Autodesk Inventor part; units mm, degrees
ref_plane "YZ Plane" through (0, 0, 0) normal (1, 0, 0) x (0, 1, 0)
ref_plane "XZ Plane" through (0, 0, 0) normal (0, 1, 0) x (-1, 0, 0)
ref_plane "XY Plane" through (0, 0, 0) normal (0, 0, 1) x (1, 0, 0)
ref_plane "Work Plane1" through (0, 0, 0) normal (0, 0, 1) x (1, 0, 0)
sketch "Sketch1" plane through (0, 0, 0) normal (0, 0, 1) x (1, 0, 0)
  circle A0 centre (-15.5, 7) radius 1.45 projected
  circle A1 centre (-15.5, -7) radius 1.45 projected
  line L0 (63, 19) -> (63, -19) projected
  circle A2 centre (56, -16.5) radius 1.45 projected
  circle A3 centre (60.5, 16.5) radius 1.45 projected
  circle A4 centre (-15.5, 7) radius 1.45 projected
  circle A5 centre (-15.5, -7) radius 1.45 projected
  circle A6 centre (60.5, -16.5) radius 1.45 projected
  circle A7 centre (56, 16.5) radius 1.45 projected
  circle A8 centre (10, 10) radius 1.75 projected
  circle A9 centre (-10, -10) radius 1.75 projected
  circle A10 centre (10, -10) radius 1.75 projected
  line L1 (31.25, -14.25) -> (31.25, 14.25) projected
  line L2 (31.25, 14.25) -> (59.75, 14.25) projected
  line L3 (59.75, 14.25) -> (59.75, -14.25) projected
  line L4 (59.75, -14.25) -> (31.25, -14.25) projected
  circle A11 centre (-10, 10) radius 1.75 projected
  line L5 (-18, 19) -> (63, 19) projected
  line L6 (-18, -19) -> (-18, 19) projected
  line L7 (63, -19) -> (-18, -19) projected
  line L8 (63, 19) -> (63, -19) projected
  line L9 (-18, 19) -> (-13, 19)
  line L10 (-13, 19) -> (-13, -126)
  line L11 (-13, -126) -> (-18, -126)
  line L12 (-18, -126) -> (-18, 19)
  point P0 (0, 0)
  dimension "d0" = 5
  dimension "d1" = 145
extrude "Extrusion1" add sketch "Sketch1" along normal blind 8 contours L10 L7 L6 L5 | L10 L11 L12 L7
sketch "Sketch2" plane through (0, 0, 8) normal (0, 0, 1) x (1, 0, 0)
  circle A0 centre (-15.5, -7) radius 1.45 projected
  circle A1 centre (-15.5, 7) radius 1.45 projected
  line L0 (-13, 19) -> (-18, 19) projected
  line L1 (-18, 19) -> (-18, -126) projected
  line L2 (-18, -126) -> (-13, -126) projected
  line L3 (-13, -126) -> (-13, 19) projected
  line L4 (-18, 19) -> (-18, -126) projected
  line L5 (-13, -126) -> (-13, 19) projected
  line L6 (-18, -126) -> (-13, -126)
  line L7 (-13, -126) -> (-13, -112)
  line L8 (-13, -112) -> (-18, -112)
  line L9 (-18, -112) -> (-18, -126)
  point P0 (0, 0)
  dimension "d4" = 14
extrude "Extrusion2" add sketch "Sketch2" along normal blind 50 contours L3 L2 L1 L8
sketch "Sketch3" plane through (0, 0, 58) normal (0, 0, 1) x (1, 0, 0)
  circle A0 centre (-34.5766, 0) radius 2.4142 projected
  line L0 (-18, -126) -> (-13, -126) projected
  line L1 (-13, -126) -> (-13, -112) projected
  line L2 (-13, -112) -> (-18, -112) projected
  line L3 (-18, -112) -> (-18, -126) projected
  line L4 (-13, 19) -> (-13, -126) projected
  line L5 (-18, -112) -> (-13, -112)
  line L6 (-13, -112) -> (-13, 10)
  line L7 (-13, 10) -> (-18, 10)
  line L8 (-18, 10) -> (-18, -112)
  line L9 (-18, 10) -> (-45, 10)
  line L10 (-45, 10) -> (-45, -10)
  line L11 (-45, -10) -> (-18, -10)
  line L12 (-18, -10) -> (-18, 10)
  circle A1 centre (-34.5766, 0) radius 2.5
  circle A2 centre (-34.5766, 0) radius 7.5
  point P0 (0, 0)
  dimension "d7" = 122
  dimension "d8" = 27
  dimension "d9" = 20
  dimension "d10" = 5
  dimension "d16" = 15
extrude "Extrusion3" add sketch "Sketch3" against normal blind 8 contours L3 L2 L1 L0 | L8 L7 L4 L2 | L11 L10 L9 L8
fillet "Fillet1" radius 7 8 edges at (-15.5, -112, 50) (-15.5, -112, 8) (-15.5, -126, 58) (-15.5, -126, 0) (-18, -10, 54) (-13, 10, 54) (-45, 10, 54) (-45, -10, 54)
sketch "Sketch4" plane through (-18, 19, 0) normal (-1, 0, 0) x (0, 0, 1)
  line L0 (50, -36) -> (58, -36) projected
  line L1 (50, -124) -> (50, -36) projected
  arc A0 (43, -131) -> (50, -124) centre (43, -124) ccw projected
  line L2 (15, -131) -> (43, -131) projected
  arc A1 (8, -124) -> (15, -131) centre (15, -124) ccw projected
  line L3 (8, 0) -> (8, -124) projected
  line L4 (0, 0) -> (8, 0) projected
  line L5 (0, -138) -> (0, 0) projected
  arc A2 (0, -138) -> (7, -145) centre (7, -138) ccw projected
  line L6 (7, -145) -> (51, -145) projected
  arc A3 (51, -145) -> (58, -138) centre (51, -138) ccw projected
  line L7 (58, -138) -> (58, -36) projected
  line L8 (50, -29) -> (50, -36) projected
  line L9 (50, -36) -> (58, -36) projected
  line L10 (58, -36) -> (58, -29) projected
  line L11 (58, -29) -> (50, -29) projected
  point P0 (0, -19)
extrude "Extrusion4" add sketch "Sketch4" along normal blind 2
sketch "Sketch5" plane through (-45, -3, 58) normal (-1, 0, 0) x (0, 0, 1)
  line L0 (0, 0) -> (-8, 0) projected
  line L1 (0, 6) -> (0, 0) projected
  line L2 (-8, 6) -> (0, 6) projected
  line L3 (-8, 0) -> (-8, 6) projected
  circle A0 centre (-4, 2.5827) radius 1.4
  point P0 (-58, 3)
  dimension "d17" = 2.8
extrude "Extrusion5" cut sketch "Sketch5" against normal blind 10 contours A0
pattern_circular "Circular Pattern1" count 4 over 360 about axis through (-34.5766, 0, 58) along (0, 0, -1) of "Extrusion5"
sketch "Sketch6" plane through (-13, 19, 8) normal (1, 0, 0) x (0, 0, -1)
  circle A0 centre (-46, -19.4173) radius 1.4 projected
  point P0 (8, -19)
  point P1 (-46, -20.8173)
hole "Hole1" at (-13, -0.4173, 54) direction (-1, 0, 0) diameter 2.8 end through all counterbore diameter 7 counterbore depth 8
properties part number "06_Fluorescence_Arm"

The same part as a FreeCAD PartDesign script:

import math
import FreeCAD as App
import Part
import Sketcher

V = App.Vector
Q = App.Units.Quantity


def edges_at(feature, points):
    """Names of the edges that pass closest to the given points."""
    edges = feature.Shape.Edges
    near = lambda p: min(range(len(edges)), key=lambda i: edges[i].distToShape(Part.Vertex(*p))[0])
    return sorted({f"Edge{near(p) + 1}" for p in points})

doc = App.newDocument("Part")
body = doc.addObject("PartDesign::Body", "Body")

sketch1 = body.newObject("Sketcher::SketchObject", "Sketch")
sketch1.AttachmentSupport = (doc.getObject("XY_Plane"), [""])
sketch1.MapMode = "FlatFace"
sketch1.addGeometry(Part.LineSegment(V(-13, 19, 0), V(-18, 19, 0)), False)
sketch1.addGeometry(Part.LineSegment(V(-18, 19, 0), V(-18, -126, 0)), False)
sketch1.addGeometry(Part.LineSegment(V(-18, -126, 0), V(-13, -126, 0)), False)
sketch1.addGeometry(Part.LineSegment(V(-13, -126, 0), V(-13, 19, 0)), False)
sketch1.addGeometry(Part.Circle(V(-15.5, -7, 0), V(0, 0, 1), 1.4), False)
sketch1.addGeometry(Part.Circle(V(-15.5, 7, 0), V(0, 0, 1), 1.4), False)
sketch1.addConstraint(Sketcher.Constraint("Coincident", 0, 2, 1, 1))
sketch1.addConstraint(Sketcher.Constraint("Coincident", 1, 2, 2, 1))
sketch1.addConstraint(Sketcher.Constraint("Coincident", 2, 2, 3, 1))
sketch1.addConstraint(Sketcher.Constraint("Coincident", 3, 2, 0, 1))
sketch1.addConstraint(Sketcher.Constraint("Horizontal", 0))
sketch1.addConstraint(Sketcher.Constraint("Vertical", 1))
sketch1.addConstraint(Sketcher.Constraint("Horizontal", 2))
sketch1.addConstraint(Sketcher.Constraint("Vertical", 3))
sketch1.addConstraint(Sketcher.Constraint("Equal", 4, 5))
sketch1.addConstraint(Sketcher.Constraint("Symmetric", 4, 3, 5, 3, -1))
sketch1.addConstraint(Sketcher.Constraint("DistanceX", 0, 2, 0, 1, Q("5 mm")))
sketch1.addConstraint(Sketcher.Constraint("DistanceY", 1, 2, 1, 1, Q("145 mm")))
sketch1.addConstraint(Sketcher.Constraint("Diameter", 4, Q("2.9 mm")))
sketch1.addConstraint(Sketcher.Constraint("DistanceY", 4, 3, -1, 1, Q("7 mm")))
sketch1.addConstraint(Sketcher.Constraint("DistanceX", 0, 2, -1, 1, Q("18 mm")))
sketch1.addConstraint(Sketcher.Constraint("DistanceY", -1, 1, 0, 2, Q("19 mm")))
sketch1.addConstraint(Sketcher.Constraint("DistanceX", 4, 3, -1, 1, Q("15.5 mm")))
pad1 = body.newObject("PartDesign::Pad", "Pad")
pad1.Profile = sketch1
pad1.Length = 8

sketch2 = body.newObject("Sketcher::SketchObject", "Sketch001")
sketch2.AttachmentSupport = (doc.getObject("XY_Plane"), [""])
sketch2.MapMode = "FlatFace"
sketch2.AttachmentOffset = App.Placement(V(0, 0, 8), App.Rotation())
sketch2.addGeometry(Part.LineSegment(V(-13, -126, 0), V(-13, -112, 0)), False)
sketch2.addGeometry(Part.LineSegment(V(-13, -112, 0), V(-18, -112, 0)), False)
sketch2.addGeometry(Part.LineSegment(V(-18, -112, 0), V(-18, -126, 0)), False)
sketch2.addGeometry(Part.LineSegment(V(-18, -126, 0), V(-13, -126, 0)), False)
sketch2.addConstraint(Sketcher.Constraint("Coincident", 0, 2, 1, 1))
sketch2.addConstraint(Sketcher.Constraint("Coincident", 1, 2, 2, 1))
sketch2.addConstraint(Sketcher.Constraint("Coincident", 2, 2, 3, 1))
sketch2.addConstraint(Sketcher.Constraint("Coincident", 3, 2, 0, 1))
sketch2.addConstraint(Sketcher.Constraint("Vertical", 0))
sketch2.addConstraint(Sketcher.Constraint("Horizontal", 1))
sketch2.addConstraint(Sketcher.Constraint("Vertical", 2))
sketch2.addConstraint(Sketcher.Constraint("Horizontal", 3))
sketch2.addConstraint(Sketcher.Constraint("DistanceY", 0, 1, 0, 2, Q("14 mm")))
sketch2.addConstraint(Sketcher.Constraint("DistanceX", 1, 2, 1, 1, Q("5 mm")))
sketch2.addConstraint(Sketcher.Constraint("DistanceX", 0, 2, -1, 1, Q("13 mm")))
sketch2.addConstraint(Sketcher.Constraint("DistanceY", 0, 2, -1, 1, Q("112 mm")))
pad2 = body.newObject("PartDesign::Pad", "Pad001")
pad2.Profile = sketch2
pad2.Length = 50

sketch3 = body.newObject("Sketcher::SketchObject", "Sketch002")
sketch3.AttachmentSupport = (doc.getObject("XY_Plane"), [""])
sketch3.MapMode = "FlatFace"
sketch3.AttachmentOffset = App.Placement(V(0, 0, 58), App.Rotation())
sketch3.addGeometry(Part.LineSegment(V(-18, -126, 0), V(-13, -126, 0)), False)
sketch3.addGeometry(Part.LineSegment(V(-13, -126, 0), V(-13, 10, 0)), False)
sketch3.addGeometry(Part.LineSegment(V(-13, 10, 0), V(-45, 10, 0)), False)
sketch3.addGeometry(Part.LineSegment(V(-45, 10, 0), V(-45, -10, 0)), False)
sketch3.addGeometry(Part.LineSegment(V(-45, -10, 0), V(-18, -10, 0)), False)
sketch3.addGeometry(Part.LineSegment(V(-18, -10, 0), V(-18, -126, 0)), False)
sketch3.addGeometry(Part.Circle(V(-35, 0, 0), V(0, 0, 1), 8), False)
sketch3.addConstraint(Sketcher.Constraint("Coincident", 0, 2, 1, 1))
sketch3.addConstraint(Sketcher.Constraint("Coincident", 1, 2, 2, 1))
sketch3.addConstraint(Sketcher.Constraint("Coincident", 2, 2, 3, 1))
sketch3.addConstraint(Sketcher.Constraint("Coincident", 3, 2, 4, 1))
sketch3.addConstraint(Sketcher.Constraint("Coincident", 4, 2, 5, 1))
sketch3.addConstraint(Sketcher.Constraint("Coincident", 5, 2, 0, 1))
sketch3.addConstraint(Sketcher.Constraint("Horizontal", 0))
sketch3.addConstraint(Sketcher.Constraint("Vertical", 1))
sketch3.addConstraint(Sketcher.Constraint("Horizontal", 2))
sketch3.addConstraint(Sketcher.Constraint("Vertical", 3))
sketch3.addConstraint(Sketcher.Constraint("Horizontal", 4))
sketch3.addConstraint(Sketcher.Constraint("Vertical", 5))
sketch3.addConstraint(Sketcher.Constraint("PointOnObject", 6, 3, -1))
sketch3.addConstraint(Sketcher.Constraint("Diameter", 6, Q("15 mm")))
sketch3.addConstraint(Sketcher.Constraint("DistanceX", 0, 1, 0, 2, Q("5 mm")))
sketch3.addConstraint(Sketcher.Constraint("DistanceX", 4, 1, 4, 2, Q("27 mm")))
sketch3.addConstraint(Sketcher.Constraint("DistanceY", 3, 2, 3, 1, Q("20 mm")))
sketch3.addConstraint(Sketcher.Constraint("DistanceY", 1, 1, 1, 2, Q("136 mm")))
sketch3.addConstraint(Sketcher.Constraint("DistanceX", 0, 2, -1, 1, Q("13 mm")))
sketch3.addConstraint(Sketcher.Constraint("DistanceY", 0, 2, -1, 1, Q("126 mm")))
sketch3.addConstraint(Sketcher.Constraint("DistanceX", 6, 3, -1, 1, Q("34.5766 mm")))
pad3 = body.newObject("PartDesign::Pad", "Pad002")
pad3.Profile = sketch3
pad3.Length = 8
pad3.Reversed = True
doc.recompute()

fillet = body.newObject("PartDesign::Fillet", "Fillet")
fillet.Base = (pad3, edges_at(pad3, [
    (-15.5, -112, 50),
    (-15.5, -112, 8),
    (-15.5, -126, 58),
    (-15.5, -126, 0),
    (-18, -10, 54),
    (-13, 10, 54),
    (-45, 10, 54),
    (-45, -10, 54),
]))
fillet.Radius = 7

sketch4 = body.newObject("Sketcher::SketchObject", "Sketch003")
sketch4.AttachmentSupport = (doc.getObject("YZ_Plane"), [""])
sketch4.MapMode = "FlatFace"
sketch4.AttachmentOffset = App.Placement(V(0, 0, -18), App.Rotation())
sketch4.addGeometry(Part.LineSegment(V(-10, 50, 0), V(-105, 50, 0)), False)
sketch4.addGeometry(Part.ArcOfCircle(Part.Circle(V(-105, 43, 0), V(0, 0, 1), 7), math.radians(90), math.radians(180)), False)
sketch4.addGeometry(Part.LineSegment(V(-112, 43, 0), V(-112, 15, 0)), False)
sketch4.addGeometry(Part.ArcOfCircle(Part.Circle(V(-105, 15, 0), V(0, 0, 1), 7), math.radians(180), math.radians(270)), False)
sketch4.addGeometry(Part.LineSegment(V(-105, 8, 0), V(19, 8, 0)), False)
sketch4.addGeometry(Part.LineSegment(V(19, 8, 0), V(19, 0, 0)), False)
sketch4.addGeometry(Part.LineSegment(V(19, 0, 0), V(-119, 0, 0)), False)
sketch4.addGeometry(Part.ArcOfCircle(Part.Circle(V(-119, 7, 0), V(0, 0, 1), 7), math.radians(180), math.radians(270)), False)
sketch4.addGeometry(Part.LineSegment(V(-126, 7, 0), V(-126, 51, 0)), False)
sketch4.addGeometry(Part.ArcOfCircle(Part.Circle(V(-119, 51, 0), V(0, 0, 1), 7), math.radians(90), math.radians(180)), False)
sketch4.addGeometry(Part.LineSegment(V(-119, 58, 0), V(-10, 58, 0)), False)
sketch4.addGeometry(Part.LineSegment(V(-10, 58, 0), V(-10, 50, 0)), False)
sketch4.addConstraint(Sketcher.Constraint("Tangent", 0, 2, 1, 1))
sketch4.addConstraint(Sketcher.Constraint("Tangent", 1, 2, 2, 1))
sketch4.addConstraint(Sketcher.Constraint("Tangent", 2, 2, 3, 1))
sketch4.addConstraint(Sketcher.Constraint("Tangent", 3, 2, 4, 1))
sketch4.addConstraint(Sketcher.Constraint("Coincident", 4, 2, 5, 1))
sketch4.addConstraint(Sketcher.Constraint("Coincident", 5, 2, 6, 1))
sketch4.addConstraint(Sketcher.Constraint("Tangent", 6, 2, 7, 2))
sketch4.addConstraint(Sketcher.Constraint("Tangent", 7, 1, 8, 1))
sketch4.addConstraint(Sketcher.Constraint("Tangent", 8, 2, 9, 2))
sketch4.addConstraint(Sketcher.Constraint("Tangent", 9, 1, 10, 1))
sketch4.addConstraint(Sketcher.Constraint("Coincident", 10, 2, 11, 1))
sketch4.addConstraint(Sketcher.Constraint("Coincident", 11, 2, 0, 1))
sketch4.addConstraint(Sketcher.Constraint("Horizontal", 0))
sketch4.addConstraint(Sketcher.Constraint("Vertical", 2))
sketch4.addConstraint(Sketcher.Constraint("Horizontal", 4))
sketch4.addConstraint(Sketcher.Constraint("Vertical", 5))
sketch4.addConstraint(Sketcher.Constraint("Horizontal", 6))
sketch4.addConstraint(Sketcher.Constraint("Vertical", 8))
sketch4.addConstraint(Sketcher.Constraint("Horizontal", 10))
sketch4.addConstraint(Sketcher.Constraint("Vertical", 11))
sketch4.addConstraint(Sketcher.Constraint("Equal", 1, 3))
sketch4.addConstraint(Sketcher.Constraint("Equal", 3, 7))
sketch4.addConstraint(Sketcher.Constraint("Equal", 7, 9))
sketch4.addConstraint(Sketcher.Constraint("PointOnObject", 5, 2, -1))
sketch4.addConstraint(Sketcher.Constraint("Equal", 5, 11))
sketch4.addConstraint(Sketcher.Constraint("Radius", 1, Q("7 mm")))
sketch4.addConstraint(Sketcher.Constraint("DistanceX", 0, 2, 0, 1, Q("95 mm")))
sketch4.addConstraint(Sketcher.Constraint("DistanceX", 4, 1, 4, 2, Q("124 mm")))
sketch4.addConstraint(Sketcher.Constraint("DistanceX", 6, 2, 6, 1, Q("138 mm")))
sketch4.addConstraint(Sketcher.Constraint("DistanceY", 2, 2, 2, 1, Q("28 mm")))
sketch4.addConstraint(Sketcher.Constraint("DistanceY", 5, 2, 5, 1, Q("8 mm")))
sketch4.addConstraint(Sketcher.Constraint("DistanceX", 1, 3, -1, 1, Q("105 mm")))
pad4 = body.newObject("PartDesign::Pad", "Pad003")
pad4.Profile = sketch4
pad4.Length = 2
pad4.Reversed = True

sketch5 = body.newObject("Sketcher::SketchObject", "Sketch004")
sketch5.AttachmentSupport = (doc.getObject("YZ_Plane"), [""])
sketch5.MapMode = "FlatFace"
sketch5.AttachmentOffset = App.Placement(V(0, 0, -45), App.Rotation())
sketch5.addGeometry(Part.Circle(V(-0.4, 54, 0), V(0, 0, 1), 1.4), False)
sketch5.addConstraint(Sketcher.Constraint("Diameter", 0, Q("2.8 mm")))
sketch5.addConstraint(Sketcher.Constraint("DistanceY", -1, 1, 0, 3, Q("54 mm")))
sketch5.addConstraint(Sketcher.Constraint("DistanceX", 0, 3, -1, 1, Q("0.4173 mm")))
pocket1 = body.newObject("PartDesign::Pocket", "Pocket")
pocket1.Profile = sketch5
pocket1.Length = 10
pocket1.Reversed = True
doc.recompute()

datumline = body.newObject("PartDesign::Line", "DatumLine")
datumline.Placement = App.Placement(V(-34.5766, 0, 0), App.Rotation(V(0, 0, 1), V(0, 0, 1)))
polarpattern = body.newObject("PartDesign::PolarPattern", "PolarPattern")
polarpattern.Originals = [pocket1]
polarpattern.Axis = (datumline, [""])
polarpattern.Angle = 360
polarpattern.Occurrences = 4
body.Tip = polarpattern

sketch6 = body.newObject("Sketcher::SketchObject", "Sketch005")
sketch6.AttachmentSupport = (doc.getObject("YZ_Plane"), [""])
sketch6.MapMode = "FlatFace"
sketch6.AttachmentOffset = App.Placement(V(0, 0, -13), App.Rotation())
sketch6.addGeometry(Part.Circle(V(-0.4, 54, 0), V(0, 0, 1), 1.4), False)
sketch6.addConstraint(Sketcher.Constraint("Diameter", 0, Q("2.8 mm")))
sketch6.addConstraint(Sketcher.Constraint("DistanceY", -1, 1, 0, 3, Q("54 mm")))
sketch6.addConstraint(Sketcher.Constraint("DistanceX", 0, 3, -1, 1, Q("0.4173 mm")))
doc.recompute()
hole = body.newObject("PartDesign::Hole", "Hole")
hole.Profile = sketch6
hole.ThreadType = "None"
hole.Diameter = 2.8
hole.DepthType = "ThroughAll"
hole.HoleCutType = "Counterbore"
hole.HoleCutDiameter = 7
hole.HoleCutDepth = 8

doc.recompute()
